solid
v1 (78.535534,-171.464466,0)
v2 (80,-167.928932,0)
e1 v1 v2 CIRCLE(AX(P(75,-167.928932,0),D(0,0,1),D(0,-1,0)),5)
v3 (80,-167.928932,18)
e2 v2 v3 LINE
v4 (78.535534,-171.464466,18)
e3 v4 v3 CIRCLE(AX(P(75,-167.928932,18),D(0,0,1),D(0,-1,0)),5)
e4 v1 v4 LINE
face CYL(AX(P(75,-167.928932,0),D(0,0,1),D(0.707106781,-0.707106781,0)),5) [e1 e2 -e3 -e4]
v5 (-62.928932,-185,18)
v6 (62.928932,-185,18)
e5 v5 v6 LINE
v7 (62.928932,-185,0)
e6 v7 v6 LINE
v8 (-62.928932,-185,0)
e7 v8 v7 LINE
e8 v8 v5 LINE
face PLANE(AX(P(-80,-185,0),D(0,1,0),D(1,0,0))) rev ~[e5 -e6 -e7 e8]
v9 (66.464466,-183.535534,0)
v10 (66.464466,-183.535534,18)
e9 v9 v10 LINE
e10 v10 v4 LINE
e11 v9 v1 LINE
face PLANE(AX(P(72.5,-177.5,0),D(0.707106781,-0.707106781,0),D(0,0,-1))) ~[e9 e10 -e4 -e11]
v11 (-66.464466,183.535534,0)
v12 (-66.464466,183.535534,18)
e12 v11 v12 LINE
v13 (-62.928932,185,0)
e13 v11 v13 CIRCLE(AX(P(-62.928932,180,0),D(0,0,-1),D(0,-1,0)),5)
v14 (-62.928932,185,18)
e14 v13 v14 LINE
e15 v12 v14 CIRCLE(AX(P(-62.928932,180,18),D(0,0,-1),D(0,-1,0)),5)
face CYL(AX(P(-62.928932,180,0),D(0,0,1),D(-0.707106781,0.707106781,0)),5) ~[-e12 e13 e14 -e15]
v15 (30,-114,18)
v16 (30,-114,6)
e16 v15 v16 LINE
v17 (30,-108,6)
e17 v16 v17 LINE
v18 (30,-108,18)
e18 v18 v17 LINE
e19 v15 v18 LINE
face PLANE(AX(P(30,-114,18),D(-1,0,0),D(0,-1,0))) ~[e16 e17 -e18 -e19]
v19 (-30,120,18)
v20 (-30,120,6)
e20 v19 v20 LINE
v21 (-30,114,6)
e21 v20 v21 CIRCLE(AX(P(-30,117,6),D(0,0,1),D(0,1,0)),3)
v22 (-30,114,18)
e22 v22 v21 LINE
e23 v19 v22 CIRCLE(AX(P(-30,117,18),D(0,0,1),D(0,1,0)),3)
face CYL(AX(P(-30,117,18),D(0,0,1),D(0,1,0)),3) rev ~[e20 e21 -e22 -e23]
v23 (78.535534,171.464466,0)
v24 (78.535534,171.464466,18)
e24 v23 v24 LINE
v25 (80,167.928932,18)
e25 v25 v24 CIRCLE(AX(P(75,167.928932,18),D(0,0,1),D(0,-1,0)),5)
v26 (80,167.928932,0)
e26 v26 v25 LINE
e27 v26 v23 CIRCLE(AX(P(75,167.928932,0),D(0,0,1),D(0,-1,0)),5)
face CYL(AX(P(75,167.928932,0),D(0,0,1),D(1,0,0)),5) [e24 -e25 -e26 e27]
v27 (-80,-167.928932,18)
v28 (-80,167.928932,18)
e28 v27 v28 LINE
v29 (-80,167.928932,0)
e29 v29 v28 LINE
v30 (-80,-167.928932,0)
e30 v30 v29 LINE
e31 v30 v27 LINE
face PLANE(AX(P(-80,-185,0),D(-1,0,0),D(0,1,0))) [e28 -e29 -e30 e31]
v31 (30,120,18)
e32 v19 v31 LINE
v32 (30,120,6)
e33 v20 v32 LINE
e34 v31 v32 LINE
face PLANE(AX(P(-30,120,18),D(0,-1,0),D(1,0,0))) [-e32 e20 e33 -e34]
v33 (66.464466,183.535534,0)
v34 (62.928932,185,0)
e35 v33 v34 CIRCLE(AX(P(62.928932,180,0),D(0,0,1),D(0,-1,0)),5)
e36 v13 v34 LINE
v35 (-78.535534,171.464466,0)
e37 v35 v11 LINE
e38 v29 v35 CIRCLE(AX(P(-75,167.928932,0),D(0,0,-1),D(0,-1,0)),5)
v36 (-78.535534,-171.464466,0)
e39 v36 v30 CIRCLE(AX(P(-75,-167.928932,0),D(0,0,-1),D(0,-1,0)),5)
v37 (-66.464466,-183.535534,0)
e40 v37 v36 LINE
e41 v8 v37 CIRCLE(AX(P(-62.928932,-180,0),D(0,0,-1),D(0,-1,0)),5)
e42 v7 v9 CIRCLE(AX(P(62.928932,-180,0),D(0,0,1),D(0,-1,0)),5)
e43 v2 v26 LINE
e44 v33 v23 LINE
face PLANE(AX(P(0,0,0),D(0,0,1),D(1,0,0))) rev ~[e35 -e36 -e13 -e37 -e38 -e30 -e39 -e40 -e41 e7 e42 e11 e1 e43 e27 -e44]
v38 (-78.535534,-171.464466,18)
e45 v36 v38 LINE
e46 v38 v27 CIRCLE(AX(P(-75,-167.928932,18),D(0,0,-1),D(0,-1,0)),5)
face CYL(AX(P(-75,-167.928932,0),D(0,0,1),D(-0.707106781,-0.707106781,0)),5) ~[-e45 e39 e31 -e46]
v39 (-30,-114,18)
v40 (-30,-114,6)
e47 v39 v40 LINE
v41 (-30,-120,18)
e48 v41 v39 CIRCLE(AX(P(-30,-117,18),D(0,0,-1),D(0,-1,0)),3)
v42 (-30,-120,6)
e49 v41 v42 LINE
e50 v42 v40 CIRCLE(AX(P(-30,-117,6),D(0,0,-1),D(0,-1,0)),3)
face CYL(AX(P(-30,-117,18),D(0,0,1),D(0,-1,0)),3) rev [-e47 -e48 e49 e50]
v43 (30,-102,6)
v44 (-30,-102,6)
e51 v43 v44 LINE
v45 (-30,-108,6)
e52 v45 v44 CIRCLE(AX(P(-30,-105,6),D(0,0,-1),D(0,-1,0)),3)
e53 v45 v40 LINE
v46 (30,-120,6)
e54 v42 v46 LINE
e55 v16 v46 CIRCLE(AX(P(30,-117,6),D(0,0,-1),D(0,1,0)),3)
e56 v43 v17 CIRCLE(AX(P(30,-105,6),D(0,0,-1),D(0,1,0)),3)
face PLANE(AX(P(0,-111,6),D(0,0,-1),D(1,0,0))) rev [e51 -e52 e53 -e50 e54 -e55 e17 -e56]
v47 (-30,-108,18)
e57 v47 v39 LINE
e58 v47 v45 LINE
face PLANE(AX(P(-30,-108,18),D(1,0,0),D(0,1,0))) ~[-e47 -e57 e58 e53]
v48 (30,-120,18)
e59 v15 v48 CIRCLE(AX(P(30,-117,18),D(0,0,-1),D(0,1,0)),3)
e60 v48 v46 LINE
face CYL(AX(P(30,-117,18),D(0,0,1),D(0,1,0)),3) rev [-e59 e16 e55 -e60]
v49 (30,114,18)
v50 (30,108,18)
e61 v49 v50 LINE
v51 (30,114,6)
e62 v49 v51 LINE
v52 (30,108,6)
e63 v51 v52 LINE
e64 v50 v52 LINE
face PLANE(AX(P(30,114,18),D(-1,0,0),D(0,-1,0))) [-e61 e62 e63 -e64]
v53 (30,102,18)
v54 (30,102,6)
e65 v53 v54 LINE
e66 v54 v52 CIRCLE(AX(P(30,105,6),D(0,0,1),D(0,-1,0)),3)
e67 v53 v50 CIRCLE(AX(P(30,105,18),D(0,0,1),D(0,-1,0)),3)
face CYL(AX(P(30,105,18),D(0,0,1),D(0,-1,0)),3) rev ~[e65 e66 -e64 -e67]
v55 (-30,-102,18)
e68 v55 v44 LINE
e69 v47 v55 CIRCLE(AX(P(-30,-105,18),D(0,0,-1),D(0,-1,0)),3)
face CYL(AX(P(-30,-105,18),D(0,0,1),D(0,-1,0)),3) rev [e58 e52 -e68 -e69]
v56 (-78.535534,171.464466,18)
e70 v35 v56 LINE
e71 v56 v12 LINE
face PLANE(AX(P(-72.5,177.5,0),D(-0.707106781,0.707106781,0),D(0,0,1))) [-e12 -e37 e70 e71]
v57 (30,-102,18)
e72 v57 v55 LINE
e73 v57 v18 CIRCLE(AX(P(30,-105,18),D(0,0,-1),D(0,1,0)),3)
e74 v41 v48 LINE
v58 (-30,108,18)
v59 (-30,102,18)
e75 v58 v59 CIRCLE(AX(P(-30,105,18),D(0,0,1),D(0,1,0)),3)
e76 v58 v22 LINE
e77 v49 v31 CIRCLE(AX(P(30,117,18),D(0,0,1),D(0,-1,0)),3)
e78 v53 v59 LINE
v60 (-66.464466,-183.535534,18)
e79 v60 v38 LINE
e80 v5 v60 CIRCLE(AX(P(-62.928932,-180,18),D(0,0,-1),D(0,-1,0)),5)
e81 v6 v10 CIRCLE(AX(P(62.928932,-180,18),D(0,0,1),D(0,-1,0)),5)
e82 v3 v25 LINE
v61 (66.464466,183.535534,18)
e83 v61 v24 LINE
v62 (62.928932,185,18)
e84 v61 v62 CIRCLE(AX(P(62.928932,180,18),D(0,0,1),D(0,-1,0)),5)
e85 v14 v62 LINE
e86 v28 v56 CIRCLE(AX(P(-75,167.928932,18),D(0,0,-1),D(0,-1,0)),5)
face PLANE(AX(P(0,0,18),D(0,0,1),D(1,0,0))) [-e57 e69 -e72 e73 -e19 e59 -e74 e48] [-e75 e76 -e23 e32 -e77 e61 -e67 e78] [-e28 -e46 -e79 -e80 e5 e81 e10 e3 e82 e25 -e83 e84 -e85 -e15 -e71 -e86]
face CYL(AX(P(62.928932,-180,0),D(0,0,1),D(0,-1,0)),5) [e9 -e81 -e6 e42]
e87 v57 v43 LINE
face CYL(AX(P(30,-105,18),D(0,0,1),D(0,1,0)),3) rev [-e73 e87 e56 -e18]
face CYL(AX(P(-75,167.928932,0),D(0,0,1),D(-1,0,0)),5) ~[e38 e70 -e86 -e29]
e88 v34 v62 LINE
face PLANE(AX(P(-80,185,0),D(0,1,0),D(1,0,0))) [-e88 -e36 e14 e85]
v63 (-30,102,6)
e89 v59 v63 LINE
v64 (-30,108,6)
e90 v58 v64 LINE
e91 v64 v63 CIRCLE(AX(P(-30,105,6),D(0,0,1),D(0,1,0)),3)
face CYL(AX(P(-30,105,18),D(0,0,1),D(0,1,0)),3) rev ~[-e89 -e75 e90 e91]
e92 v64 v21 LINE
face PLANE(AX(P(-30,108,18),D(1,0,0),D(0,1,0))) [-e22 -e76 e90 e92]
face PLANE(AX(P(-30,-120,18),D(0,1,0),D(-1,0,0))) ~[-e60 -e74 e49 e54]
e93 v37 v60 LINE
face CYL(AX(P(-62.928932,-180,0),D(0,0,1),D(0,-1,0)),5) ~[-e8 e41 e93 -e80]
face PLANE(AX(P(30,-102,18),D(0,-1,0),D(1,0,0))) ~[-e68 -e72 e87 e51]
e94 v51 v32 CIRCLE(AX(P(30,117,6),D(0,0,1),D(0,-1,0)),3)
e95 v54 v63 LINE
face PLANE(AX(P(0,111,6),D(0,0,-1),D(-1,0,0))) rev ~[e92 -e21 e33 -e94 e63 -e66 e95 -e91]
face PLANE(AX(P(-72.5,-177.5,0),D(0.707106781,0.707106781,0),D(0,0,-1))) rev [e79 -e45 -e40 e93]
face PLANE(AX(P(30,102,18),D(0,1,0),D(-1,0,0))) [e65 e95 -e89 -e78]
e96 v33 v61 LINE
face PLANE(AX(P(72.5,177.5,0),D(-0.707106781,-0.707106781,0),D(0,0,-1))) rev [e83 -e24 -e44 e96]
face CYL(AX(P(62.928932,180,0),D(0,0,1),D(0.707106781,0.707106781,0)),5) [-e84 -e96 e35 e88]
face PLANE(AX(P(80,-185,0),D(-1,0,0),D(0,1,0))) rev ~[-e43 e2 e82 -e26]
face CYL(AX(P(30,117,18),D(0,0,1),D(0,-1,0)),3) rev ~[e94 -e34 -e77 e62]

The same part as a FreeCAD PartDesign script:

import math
import FreeCAD as App
import Part
import Sketcher
from FreeCAD import Vector


def edges_at(feature, points):
    """Names of the edges that pass closest to the given points."""
    edges = feature.Shape.Edges
    near = lambda p: min(range(len(edges)), key=lambda i: edges[i].distToShape(Part.Vertex(*p))[0])
    return sorted({f"Edge{near(p) + 1}" for p in points})

doc = App.newDocument("Part")
params = doc.addObject("Spreadsheet::Sheet", "Params")
for row, (alias, value) in enumerate([
    ("sketch1_width", "160 mm"),
    ("sketch1_height", "370 mm"),
    ("pad1_length", "18 mm"),
    ("sketch2_radius", "3 mm"),
    ("sketch2_width", "60 mm"),
    ("sketch2_height", "6 mm"),
    ("pocket1_length", "12 mm"),
    ("chamfer_size", "15 mm"),
    ("chamfer2_size", "15 mm"),
    ("chamfer3_size", "15 mm"),
    ("fillet_radius", "5 mm"),
], start=1):
    params.set(f"A{row}", alias)
    params.set(f"B{row}", "=" + value)
    params.setAlias(f"B{row}", alias)

body = doc.addObject("PartDesign::Body", "Body")

# Sketch on XY plane
sketch1 = body.newObject("Sketcher::SketchObject", "Sketch")
sketch1.AttachmentSupport = (doc.getObject("XY_Plane"), [""])
sketch1.MapMode = "FlatFace"
sketch1.addGeometry([
    Part.LineSegment(Vector(-80, 185, 0), Vector(-80, -185, 0)),
    Part.LineSegment(Vector(-80, -185, 0), Vector(80, -185, 0)),
    Part.LineSegment(Vector(80, -185, 0), Vector(80, 185, 0)),
    Part.LineSegment(Vector(80, 185, 0), Vector(-80, 185, 0)),
], False)
sketch1.addConstraint([
    Sketcher.Constraint("Coincident", 0, 2, 1, 1),
    Sketcher.Constraint("Coincident", 1, 2, 2, 1),
    Sketcher.Constraint("Coincident", 2, 2, 3, 1),
    Sketcher.Constraint("Coincident", 3, 2, 0, 1),
    Sketcher.Constraint("Vertical", 0),
    Sketcher.Constraint("Horizontal", 1),
    Sketcher.Constraint("Vertical", 2),
    Sketcher.Constraint("Horizontal", 3),
    Sketcher.Constraint("Symmetric", 0, 2, 2, 2, -1, 1),
    Sketcher.Constraint("DistanceX", 1, 1, 1, 2, 160.0),
    Sketcher.Constraint("DistanceY", 0, 2, 0, 1, 370.0),
])
sketch1.setExpression("Constraints[9]", "Params.sketch1_width")
sketch1.setExpression("Constraints[10]", "Params.sketch1_height")
pad1 = body.newObject("PartDesign::Pad", "Pad")
pad1.Profile = sketch1
pad1.setExpression("Length", "Params.pad1_length")

# Sketch on XY plane
sketch2 = body.newObject("Sketcher::SketchObject", "Sketch001")
sketch2.AttachmentSupport = (doc.getObject("XY_Plane"), [""])
sketch2.MapMode = "FlatFace"
sketch2.AttachmentOffset = App.Placement(Vector(0, 0, 18), App.Rotation())
sketch2.addGeometry([
    Part.LineSegment(Vector(30, 120, 0), Vector(-30, 120, 0)),  # 0
    Part.ArcOfCircle(Part.Circle(Vector(-30, 117, 0), Vector(0, 0, 1), 3), math.radians(90), math.radians(270)),  # 1
    Part.LineSegment(Vector(-30, 114, 0), Vector(-30, 108, 0)),  # 2
    Part.ArcOfCircle(Part.Circle(Vector(-30, 105, 0), Vector(0, 0, 1), 3), math.radians(90), math.radians(270)),  # 3
    Part.LineSegment(Vector(-30, 102, 0), Vector(30, 102, 0)),  # 4
    Part.ArcOfCircle(Part.Circle(Vector(30, 105, 0), Vector(0, 0, 1), 3), math.radians(-90), math.radians(90)),  # 5
    Part.LineSegment(Vector(30, 108, 0), Vector(30, 114, 0)),  # 6
    Part.ArcOfCircle(Part.Circle(Vector(30, 117, 0), Vector(0, 0, 1), 3), math.radians(-90), math.radians(90)),  # 7
], False)
sketch2.addConstraint([
    Sketcher.Constraint("Tangent", 0, 2, 1, 1),
    Sketcher.Constraint("Coincident", 1, 2, 2, 1),
    Sketcher.Constraint("Coincident", 2, 2, 3, 1),
    Sketcher.Constraint("Tangent", 3, 2, 4, 1),
    Sketcher.Constraint("Tangent", 4, 2, 5, 1),
    Sketcher.Constraint("Coincident", 5, 2, 6, 1),
    Sketcher.Constraint("Coincident", 6, 2, 7, 1),
    Sketcher.Constraint("Tangent", 7, 2, 0, 1),
    Sketcher.Constraint("Horizontal", 0),
    Sketcher.Constraint("Vertical", 2),
    Sketcher.Constraint("Horizontal", 4),
    Sketcher.Constraint("Vertical", 6),
    Sketcher.Constraint("Equal", 1, 3),
    Sketcher.Constraint("Equal", 3, 5),
    Sketcher.Constraint("Equal", 5, 7),
    Sketcher.Constraint("Vertical", 1, 3, 3, 3),
    Sketcher.Constraint("Vertical", 5, 3, 7, 3),
    Sketcher.Constraint("Vertical", 0, 2, 1, 2),
    Sketcher.Constraint("Vertical", 4, 2, 5, 2),
    Sketcher.Constraint("Radius", 1, 3.0),
    Sketcher.Constraint("DistanceX", 0, 2, 0, 1, 60.0),
    Sketcher.Constraint("DistanceY", 2, 2, 2, 1, 6.0),
    Sketcher.Constraint("DistanceX", 1, 3, -1, 1, 30.0),
    Sketcher.Constraint("DistanceY", -1, 1, 1, 3, 117.0),
])
sketch2.setExpression("Constraints[19]", "Params.sketch2_radius")
sketch2.setExpression("Constraints[20]", "Params.sketch2_width")
sketch2.setExpression("Constraints[21]", "Params.sketch2_height")
pocket1 = body.newObject("PartDesign::Pocket", "Pocket")
pocket1.Profile = sketch2
pocket1.setExpression("Length", "Params.pocket1_length")
doc.recompute()

mirrored = body.newObject("PartDesign::Mirrored", "Mirrored")
mirrored.Originals = [pocket1]
mirrored.MirrorPlane = (doc.getObject("XZ_Plane"), [""])
body.Tip = mirrored
doc.recompute()

chamfer = body.newObject("PartDesign::Chamfer", "Chamfer")
chamfer.Base = (mirrored, edges_at(mirrored, [(-80, 185, 9)]))
chamfer.setExpression("Size", "Params.chamfer_size")
doc.recompute()

chamfer2 = body.newObject("PartDesign::Chamfer", "Chamfer001")
chamfer2.Base = (chamfer, edges_at(chamfer, [(80, 185, 9), (80, -185, 9)]))
chamfer2.setExpression("Size", "Params.chamfer2_size")
doc.recompute()

chamfer3 = body.newObject("PartDesign::Chamfer", "Chamfer002")
chamfer3.Base = (chamfer2, edges_at(chamfer2, [(-80, -185, 9)]))
chamfer3.setExpression("Size", "Params.chamfer3_size")
doc.recompute()

fillet = body.newObject("PartDesign::Fillet", "Fillet")
fillet.Base = (chamfer3, edges_at(chamfer3, [
    (-80, -170, 9),
    (-65, -185, 9),
    (-80, 170, 9),
    (-65, 185, 9),
    (65, 185, 9),
    (80, 170, 9),
    (80, -170, 9),
    (65, -185, 9),
]))
fillet.setExpression("Radius", "Params.fillet_radius")

doc.recompute()
